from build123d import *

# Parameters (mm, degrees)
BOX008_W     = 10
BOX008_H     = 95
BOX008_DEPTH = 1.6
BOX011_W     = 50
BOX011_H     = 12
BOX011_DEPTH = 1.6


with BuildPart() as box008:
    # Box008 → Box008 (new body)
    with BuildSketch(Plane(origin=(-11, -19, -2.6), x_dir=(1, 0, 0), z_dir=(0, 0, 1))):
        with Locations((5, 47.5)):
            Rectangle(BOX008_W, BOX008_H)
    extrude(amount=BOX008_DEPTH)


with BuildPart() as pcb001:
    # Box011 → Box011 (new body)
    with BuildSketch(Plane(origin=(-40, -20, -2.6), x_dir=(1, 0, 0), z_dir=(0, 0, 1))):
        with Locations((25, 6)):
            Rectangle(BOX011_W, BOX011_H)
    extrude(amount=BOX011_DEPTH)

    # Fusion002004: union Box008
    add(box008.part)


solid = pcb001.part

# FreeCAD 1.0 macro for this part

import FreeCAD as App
import Part
import Sketcher
Q = App.Units.Quantity


def add_polygon(sketch, points):
    """Adds a closed chain of lines whose ends are joined by coincident constraints."""
    first, n = sketch.GeometryCount, len(points)
    for a, b in zip(points, points[1:] + points[:1]):
        sketch.addGeometry(Part.LineSegment(App.Vector(*a, 0), App.Vector(*b, 0)), False)
    for i in range(n):
        sketch.addConstraint(Sketcher.Constraint("Coincident", first + i, 2, first + (i + 1) % n, 1))

doc = App.newDocument("Part")
params = doc.addObject("Spreadsheet::Sheet", "Params")
for row, (alias, value) in enumerate([
    ("sketch1_width", "10 mm"),
    ("sketch1_height", "95 mm"),
    ("pad1_length", "1.6 mm"),
    ("sketch2_width", "50 mm"),
    ("sketch2_height", "12 mm"),
    ("pad2_length", "1.6 mm"),
], start=1):
    params.set(f"A{row}", alias)
    params.set(f"B{row}", "=" + value)
    params.setAlias(f"B{row}", alias)

body = doc.addObject("PartDesign::Body", "Body")

sketch1 = doc.addObject("Sketcher::SketchObject", "Sketch")
body.addObject(sketch1)
sketch1.AttachmentSupport = (doc.XY_Plane, [""])
sketch1.MapMode = "FlatFace"
sketch1.AttachmentOffset = App.Placement(App.Vector(0, 0, -2.6), App.Rotation())
add_polygon(sketch1, [(-11, 76), (-11, -19), (-1, -19), (-1, 76)])
sketch1.addConstraint([
    Sketcher.Constraint("Vertical", 0),
    Sketcher.Constraint("Horizontal", 1),
    Sketcher.Constraint("Vertical", 2),
    Sketcher.Constraint("Horizontal", 3),
    Sketcher.Constraint("DistanceX", 1, 1, 1, 2, Q("10 mm")),
    Sketcher.Constraint("DistanceY", 0, 2, 0, 1, Q("95 mm")),
    Sketcher.Constraint("DistanceX", 0, 2, -1, 1, Q("11 mm")),
    Sketcher.Constraint("DistanceY", 0, 2, -1, 1, Q("19 mm")),
])
sketch1.setExpression("Constraints[8]", "Params.sketch1_width")
sketch1.setExpression("Constraints[9]", "Params.sketch1_height")
pad1 = doc.addObject("PartDesign::Pad", "Pad")
body.addObject(pad1)
pad1.Profile = sketch1
pad1.setExpression("Length", "Params.pad1_length")
body2 = doc.addObject("PartDesign::Body", "Body001")

sketch2 = doc.addObject("Sketcher::SketchObject", "Sketch001")
body2.addObject(sketch2)
sketch2.AttachmentSupport = (doc.getObject("XY_Plane001"), [""])
sketch2.MapMode = "FlatFace"
sketch2.AttachmentOffset = App.Placement(App.Vector(0, 0, -2.6), App.Rotation())
add_polygon(sketch2, [(-40, -8), (-40, -20), (10, -20), (10, -8)])
sketch2.addConstraint([
    Sketcher.Constraint("Vertical", 0),
    Sketcher.Constraint("Horizontal", 1),
    Sketcher.Constraint("Vertical", 2),
    Sketcher.Constraint("Horizontal", 3),
    Sketcher.Constraint("DistanceX", 1, 1, 1, 2, Q("50 mm")),
    Sketcher.Constraint("DistanceY", 0, 2, 0, 1, Q("12 mm")),
    Sketcher.Constraint("DistanceX", 0, 2, -1, 1, Q("40 mm")),
    Sketcher.Constraint("DistanceY", 0, 2, -1, 1, Q("20 mm")),
])
sketch2.setExpression("Constraints[8]", "Params.sketch2_width")
sketch2.setExpression("Constraints[9]", "Params.sketch2_height")
pad2 = doc.addObject("PartDesign::Pad", "Pad001")
body2.addObject(pad2)
pad2.Profile = sketch2
pad2.setExpression("Length", "Params.pad2_length")
doc.recompute()

boolean = doc.addObject("PartDesign::Boolean", "Boolean")
body2.addObject(boolean)
boolean.Type = "Fuse"
boolean.addObjects([body])

doc.recompute()
